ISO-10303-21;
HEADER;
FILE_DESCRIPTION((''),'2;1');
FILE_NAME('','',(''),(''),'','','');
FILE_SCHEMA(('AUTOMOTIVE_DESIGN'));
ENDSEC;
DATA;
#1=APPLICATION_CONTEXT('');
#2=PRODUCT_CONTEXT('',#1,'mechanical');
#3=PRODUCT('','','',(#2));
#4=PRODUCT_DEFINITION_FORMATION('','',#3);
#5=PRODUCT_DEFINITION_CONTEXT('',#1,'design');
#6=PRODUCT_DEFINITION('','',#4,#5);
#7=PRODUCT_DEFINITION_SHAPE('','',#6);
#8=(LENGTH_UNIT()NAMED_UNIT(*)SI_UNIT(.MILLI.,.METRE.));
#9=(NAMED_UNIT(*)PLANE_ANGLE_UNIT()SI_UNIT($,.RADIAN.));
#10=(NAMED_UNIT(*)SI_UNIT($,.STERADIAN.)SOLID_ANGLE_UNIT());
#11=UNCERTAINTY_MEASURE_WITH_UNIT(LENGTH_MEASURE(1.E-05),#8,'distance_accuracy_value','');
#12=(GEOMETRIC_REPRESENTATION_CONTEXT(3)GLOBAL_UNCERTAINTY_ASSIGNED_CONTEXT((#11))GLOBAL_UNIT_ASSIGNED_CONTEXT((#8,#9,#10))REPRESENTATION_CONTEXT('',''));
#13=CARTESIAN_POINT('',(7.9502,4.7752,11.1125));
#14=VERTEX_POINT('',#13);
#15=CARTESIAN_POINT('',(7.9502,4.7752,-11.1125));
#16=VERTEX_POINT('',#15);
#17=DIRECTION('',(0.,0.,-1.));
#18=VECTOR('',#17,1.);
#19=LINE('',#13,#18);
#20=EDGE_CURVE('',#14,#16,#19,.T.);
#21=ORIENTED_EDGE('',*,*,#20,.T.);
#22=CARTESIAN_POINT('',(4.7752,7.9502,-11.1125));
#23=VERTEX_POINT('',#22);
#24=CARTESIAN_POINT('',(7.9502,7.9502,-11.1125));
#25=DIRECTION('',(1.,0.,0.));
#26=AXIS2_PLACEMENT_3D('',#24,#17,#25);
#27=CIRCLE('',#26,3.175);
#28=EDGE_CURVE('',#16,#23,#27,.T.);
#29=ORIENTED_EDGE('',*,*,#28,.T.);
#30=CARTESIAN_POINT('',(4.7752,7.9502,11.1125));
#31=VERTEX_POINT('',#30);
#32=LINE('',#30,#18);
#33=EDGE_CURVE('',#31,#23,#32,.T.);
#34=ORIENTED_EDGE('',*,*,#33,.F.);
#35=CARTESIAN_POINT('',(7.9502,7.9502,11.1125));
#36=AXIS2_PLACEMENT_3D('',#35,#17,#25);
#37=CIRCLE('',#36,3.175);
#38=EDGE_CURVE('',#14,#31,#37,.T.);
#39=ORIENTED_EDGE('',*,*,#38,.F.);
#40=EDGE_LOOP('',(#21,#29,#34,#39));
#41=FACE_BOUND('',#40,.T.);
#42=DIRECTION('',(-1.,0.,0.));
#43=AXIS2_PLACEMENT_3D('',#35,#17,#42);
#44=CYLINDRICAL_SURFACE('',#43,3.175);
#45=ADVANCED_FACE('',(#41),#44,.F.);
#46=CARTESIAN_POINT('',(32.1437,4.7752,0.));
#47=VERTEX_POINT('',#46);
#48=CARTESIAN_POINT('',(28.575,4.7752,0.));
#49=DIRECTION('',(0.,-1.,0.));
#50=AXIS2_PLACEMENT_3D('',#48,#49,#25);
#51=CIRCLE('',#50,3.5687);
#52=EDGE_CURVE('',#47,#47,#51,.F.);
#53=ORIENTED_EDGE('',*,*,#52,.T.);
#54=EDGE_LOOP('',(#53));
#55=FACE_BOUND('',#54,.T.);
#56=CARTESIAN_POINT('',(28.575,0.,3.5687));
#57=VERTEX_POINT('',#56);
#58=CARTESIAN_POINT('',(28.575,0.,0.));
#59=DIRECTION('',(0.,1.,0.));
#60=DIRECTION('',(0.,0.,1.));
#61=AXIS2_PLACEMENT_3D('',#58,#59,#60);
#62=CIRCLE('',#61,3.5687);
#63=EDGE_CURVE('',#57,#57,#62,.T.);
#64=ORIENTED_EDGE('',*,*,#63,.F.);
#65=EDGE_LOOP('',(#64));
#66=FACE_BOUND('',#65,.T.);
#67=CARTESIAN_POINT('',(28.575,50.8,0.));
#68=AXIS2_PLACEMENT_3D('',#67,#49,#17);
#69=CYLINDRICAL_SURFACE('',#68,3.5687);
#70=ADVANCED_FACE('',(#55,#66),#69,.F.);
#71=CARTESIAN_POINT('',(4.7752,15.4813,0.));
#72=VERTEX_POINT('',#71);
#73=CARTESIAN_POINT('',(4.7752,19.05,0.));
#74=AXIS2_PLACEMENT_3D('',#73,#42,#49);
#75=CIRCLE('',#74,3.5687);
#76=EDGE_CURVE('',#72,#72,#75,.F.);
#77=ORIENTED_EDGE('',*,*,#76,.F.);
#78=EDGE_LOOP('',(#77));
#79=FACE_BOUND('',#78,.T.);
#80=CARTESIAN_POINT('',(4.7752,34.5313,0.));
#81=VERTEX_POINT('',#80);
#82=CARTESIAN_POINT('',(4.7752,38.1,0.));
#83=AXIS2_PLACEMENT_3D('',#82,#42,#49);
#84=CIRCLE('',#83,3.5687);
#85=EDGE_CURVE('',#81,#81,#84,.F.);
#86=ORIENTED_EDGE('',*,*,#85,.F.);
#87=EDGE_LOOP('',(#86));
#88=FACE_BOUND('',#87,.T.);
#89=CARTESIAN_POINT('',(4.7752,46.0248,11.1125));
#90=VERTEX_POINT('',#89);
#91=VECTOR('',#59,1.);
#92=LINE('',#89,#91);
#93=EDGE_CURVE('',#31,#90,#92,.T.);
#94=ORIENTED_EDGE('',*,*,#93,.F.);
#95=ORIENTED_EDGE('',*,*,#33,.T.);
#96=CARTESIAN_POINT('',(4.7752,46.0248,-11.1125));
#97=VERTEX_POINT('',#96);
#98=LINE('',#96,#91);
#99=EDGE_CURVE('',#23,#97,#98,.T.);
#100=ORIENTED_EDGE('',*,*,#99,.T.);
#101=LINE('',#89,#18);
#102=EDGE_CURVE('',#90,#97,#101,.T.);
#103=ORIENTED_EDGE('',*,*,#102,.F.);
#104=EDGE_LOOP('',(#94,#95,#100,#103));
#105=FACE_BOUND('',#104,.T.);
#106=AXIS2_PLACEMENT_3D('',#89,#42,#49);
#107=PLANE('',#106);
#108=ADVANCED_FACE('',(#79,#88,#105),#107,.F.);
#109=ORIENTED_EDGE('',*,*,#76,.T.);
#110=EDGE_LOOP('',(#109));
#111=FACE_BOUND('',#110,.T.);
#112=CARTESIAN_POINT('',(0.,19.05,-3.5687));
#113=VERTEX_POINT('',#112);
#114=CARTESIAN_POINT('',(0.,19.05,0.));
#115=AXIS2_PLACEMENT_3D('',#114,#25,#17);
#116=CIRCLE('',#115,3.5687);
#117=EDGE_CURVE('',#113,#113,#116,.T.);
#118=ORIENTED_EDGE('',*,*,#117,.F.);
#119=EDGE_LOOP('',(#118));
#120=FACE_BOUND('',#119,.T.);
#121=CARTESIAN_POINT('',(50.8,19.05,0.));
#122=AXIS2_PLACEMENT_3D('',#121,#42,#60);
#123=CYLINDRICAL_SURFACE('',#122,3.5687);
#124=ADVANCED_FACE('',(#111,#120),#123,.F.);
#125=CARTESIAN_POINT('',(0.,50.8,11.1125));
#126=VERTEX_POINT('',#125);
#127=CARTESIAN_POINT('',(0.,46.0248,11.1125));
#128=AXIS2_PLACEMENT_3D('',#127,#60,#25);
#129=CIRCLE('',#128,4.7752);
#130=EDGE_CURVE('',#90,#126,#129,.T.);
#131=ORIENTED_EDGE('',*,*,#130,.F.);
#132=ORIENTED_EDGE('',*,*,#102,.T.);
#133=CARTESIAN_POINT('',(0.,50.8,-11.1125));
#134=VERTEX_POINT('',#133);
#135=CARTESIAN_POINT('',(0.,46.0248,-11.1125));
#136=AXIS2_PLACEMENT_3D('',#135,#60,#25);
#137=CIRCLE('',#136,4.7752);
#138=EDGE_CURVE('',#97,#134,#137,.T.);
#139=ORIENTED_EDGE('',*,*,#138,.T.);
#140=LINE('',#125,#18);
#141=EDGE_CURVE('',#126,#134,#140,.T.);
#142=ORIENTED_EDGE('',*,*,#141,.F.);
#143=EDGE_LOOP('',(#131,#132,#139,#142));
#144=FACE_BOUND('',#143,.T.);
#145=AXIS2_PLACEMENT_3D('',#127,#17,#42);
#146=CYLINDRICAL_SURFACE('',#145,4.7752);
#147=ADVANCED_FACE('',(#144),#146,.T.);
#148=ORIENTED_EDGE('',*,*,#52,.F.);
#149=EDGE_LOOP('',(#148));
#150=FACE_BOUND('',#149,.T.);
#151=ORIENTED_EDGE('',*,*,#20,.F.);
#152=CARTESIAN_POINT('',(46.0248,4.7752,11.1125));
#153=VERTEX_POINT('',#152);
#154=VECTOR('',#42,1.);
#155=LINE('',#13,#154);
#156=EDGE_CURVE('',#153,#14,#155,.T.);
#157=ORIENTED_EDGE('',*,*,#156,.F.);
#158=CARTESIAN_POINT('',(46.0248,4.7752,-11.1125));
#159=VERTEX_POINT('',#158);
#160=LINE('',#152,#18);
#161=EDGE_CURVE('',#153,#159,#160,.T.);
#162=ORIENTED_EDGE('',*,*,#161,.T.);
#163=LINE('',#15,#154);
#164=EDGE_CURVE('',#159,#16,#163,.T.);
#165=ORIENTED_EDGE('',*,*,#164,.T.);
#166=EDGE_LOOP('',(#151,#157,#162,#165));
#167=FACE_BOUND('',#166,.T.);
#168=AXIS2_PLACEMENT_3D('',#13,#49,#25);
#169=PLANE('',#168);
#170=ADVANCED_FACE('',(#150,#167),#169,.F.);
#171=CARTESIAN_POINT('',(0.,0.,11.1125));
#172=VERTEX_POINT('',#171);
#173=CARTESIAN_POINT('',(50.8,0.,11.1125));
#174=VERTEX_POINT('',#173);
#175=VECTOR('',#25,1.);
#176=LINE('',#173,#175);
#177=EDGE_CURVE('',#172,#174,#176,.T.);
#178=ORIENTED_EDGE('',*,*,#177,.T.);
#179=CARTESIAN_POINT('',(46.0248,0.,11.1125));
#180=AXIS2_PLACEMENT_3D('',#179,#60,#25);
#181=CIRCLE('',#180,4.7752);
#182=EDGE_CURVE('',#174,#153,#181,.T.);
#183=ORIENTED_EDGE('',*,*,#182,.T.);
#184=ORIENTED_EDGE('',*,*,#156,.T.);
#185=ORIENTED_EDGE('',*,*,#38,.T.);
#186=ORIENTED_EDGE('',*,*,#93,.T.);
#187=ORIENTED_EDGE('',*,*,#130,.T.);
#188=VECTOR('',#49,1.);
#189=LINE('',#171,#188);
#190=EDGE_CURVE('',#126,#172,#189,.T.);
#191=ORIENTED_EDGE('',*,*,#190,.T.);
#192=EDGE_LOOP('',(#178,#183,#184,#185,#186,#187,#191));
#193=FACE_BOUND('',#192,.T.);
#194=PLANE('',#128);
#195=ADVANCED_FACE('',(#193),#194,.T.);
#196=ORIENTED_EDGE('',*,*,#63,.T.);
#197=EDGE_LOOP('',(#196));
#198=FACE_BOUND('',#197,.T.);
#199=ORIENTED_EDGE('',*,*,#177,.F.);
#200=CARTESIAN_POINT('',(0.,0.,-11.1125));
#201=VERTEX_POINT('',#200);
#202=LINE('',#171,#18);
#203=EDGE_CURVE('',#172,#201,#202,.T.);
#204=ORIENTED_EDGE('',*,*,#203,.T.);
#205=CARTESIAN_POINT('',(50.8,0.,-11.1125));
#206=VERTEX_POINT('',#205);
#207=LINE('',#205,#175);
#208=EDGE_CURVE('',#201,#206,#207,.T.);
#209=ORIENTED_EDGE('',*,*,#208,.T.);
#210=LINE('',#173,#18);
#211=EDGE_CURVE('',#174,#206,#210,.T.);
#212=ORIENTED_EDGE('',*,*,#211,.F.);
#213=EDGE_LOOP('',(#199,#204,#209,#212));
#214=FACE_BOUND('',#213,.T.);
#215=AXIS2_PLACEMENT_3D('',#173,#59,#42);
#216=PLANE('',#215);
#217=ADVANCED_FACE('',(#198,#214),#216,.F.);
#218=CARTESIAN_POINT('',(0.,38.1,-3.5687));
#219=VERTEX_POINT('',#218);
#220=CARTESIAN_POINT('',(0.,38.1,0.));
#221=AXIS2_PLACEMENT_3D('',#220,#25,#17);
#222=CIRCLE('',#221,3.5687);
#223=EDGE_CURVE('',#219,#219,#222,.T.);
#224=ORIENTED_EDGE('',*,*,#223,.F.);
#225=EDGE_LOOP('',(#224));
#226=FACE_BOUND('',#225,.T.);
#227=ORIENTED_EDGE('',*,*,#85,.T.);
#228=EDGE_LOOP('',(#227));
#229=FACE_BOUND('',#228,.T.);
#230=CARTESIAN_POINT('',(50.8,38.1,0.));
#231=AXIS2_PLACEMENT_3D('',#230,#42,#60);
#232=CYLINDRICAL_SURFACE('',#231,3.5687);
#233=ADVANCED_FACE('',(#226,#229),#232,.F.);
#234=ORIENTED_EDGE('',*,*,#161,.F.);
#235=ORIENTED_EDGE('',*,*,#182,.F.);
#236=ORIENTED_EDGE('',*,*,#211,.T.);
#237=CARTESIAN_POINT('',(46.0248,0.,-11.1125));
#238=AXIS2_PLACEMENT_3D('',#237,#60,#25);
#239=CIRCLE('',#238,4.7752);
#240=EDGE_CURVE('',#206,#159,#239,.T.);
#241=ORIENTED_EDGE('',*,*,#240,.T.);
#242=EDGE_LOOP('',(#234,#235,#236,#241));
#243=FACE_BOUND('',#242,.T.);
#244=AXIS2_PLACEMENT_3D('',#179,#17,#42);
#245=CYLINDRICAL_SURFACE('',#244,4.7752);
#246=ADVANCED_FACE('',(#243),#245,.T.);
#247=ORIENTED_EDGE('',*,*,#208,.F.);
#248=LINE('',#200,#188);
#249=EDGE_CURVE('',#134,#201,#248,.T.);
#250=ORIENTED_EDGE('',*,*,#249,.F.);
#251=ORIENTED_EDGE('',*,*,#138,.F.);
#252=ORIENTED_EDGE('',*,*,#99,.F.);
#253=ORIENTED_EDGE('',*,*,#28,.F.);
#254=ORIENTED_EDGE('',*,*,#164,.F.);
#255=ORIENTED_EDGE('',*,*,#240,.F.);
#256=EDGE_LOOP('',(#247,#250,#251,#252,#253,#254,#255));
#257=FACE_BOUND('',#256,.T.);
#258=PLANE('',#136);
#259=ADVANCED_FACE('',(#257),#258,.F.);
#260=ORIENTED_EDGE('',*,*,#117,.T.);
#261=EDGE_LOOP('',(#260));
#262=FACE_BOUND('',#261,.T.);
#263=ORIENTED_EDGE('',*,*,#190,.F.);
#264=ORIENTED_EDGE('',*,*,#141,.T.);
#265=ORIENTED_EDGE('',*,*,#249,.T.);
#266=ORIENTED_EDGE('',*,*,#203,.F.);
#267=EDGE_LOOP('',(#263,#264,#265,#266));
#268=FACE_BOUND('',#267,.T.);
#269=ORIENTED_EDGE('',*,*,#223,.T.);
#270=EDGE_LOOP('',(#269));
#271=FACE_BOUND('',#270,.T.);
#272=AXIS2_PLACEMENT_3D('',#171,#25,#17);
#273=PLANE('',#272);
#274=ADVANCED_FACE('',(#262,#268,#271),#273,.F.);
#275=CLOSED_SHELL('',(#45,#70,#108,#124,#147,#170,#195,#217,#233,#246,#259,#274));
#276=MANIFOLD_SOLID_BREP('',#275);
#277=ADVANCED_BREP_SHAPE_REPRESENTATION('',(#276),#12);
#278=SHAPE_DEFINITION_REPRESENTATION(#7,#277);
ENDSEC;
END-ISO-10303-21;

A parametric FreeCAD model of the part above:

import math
import FreeCAD as App
import Part
import Sketcher
from FreeCAD import Vector
Q = App.Units.Quantity

doc = App.newDocument("Part")
body = doc.addObject("PartDesign::Body", "Body")

sketch1 = body.newObject("Sketcher::SketchObject", "Sketch")
sketch1.AttachmentSupport = (doc.getObject("XY_Plane"), [""])
sketch1.MapMode = "FlatFace"
sketch1.addGeometry(Part.LineSegment(Vector(0, 50.8, 0), Vector(0, 0, 0)), False)
sketch1.addGeometry(Part.LineSegment(Vector(0, 0, 0), Vector(50.8, 0, 0)), False)
sketch1.addGeometry(Part.ArcOfCircle(Part.Circle(Vector(46, 0, 0), Vector(0, 0, 1), 4.8), math.radians(0), math.radians(90)), False)
sketch1.addGeometry(Part.LineSegment(Vector(46, 4.8, 0), Vector(8, 4.8, 0)), False)
sketch1.addGeometry(Part.ArcOfCircle(Part.Circle(Vector(8, 8, 0), Vector(0, 0, 1), 3.2), math.radians(-180), math.radians(-90)), False)
sketch1.addGeometry(Part.LineSegment(Vector(4.8, 8, 0), Vector(4.8, 46, 0)), False)
sketch1.addGeometry(Part.ArcOfCircle(Part.Circle(Vector(0, 46, 0), Vector(0, 0, 1), 4.8), math.radians(0), math.radians(90)), False)
sketch1.addConstraint(Sketcher.Constraint("Coincident", 0, 2, 1, 1))
sketch1.addConstraint(Sketcher.Constraint("Coincident", 1, 2, 2, 1))
sketch1.addConstraint(Sketcher.Constraint("Tangent", 2, 2, 3, 1))
sketch1.addConstraint(Sketcher.Constraint("Tangent", 3, 2, 4, 2))
sketch1.addConstraint(Sketcher.Constraint("Tangent", 4, 1, 5, 1))
sketch1.addConstraint(Sketcher.Constraint("Tangent", 5, 2, 6, 1))
sketch1.addConstraint(Sketcher.Constraint("Coincident", 6, 2, 0, 1))
sketch1.addConstraint(Sketcher.Constraint("Vertical", 0))
sketch1.addConstraint(Sketcher.Constraint("Horizontal", 1))
sketch1.addConstraint(Sketcher.Constraint("Horizontal", 3))
sketch1.addConstraint(Sketcher.Constraint("Vertical", 5))
sketch1.addConstraint(Sketcher.Constraint("Coincident", 0, 2, -1, 1))
sketch1.addConstraint(Sketcher.Constraint("Equal", 2, 6))
sketch1.addConstraint(Sketcher.Constraint("PointOnObject", 2, 3, -1))
sketch1.addConstraint(Sketcher.Constraint("PointOnObject", 6, 3, -2))
sketch1.addConstraint(Sketcher.Constraint("Equal", 1, 0))
sketch1.addConstraint(Sketcher.Constraint("DistanceX", 1, 1, 1, 2, Q("2 in")))
sketch1.addConstraint(Sketcher.Constraint("Radius", 2, Q("0.188 in")))
sketch1.addConstraint(Sketcher.Constraint("Radius", 4, Q("0.125 in")))
pad1 = body.newObject("PartDesign::Pad", "Pad")
pad1.Profile = sketch1
pad1.Length = Q("0.875 in")
pad1.Midplane = True

sketch2 = body.newObject("Sketcher::SketchObject", "Sketch001")
sketch2.AttachmentSupport = (doc.getObject("XZ_Plane"), [""])
sketch2.MapMode = "FlatFace"
sketch2.addGeometry(Part.Circle(Vector(28.6, 0, 0), Vector(0, 0, 1), 3.6), False)
sketch2.addConstraint(Sketcher.Constraint("PointOnObject", 0, 3, -1))
sketch2.addConstraint(Sketcher.Constraint("Diameter", 0, Q("0.281 in")))
sketch2.addConstraint(Sketcher.Constraint("DistanceX", -1, 1, 0, 3, Q("1.125 in")))
pocket1 = body.newObject("PartDesign::Pocket", "Pocket")
pocket1.Profile = sketch2
pocket1.Type = "ThroughAll"

sketch3 = body.newObject("Sketcher::SketchObject", "Sketch002")
sketch3.AttachmentSupport = (doc.getObject("YZ_Plane"), [""])
sketch3.MapMode = "FlatFace"
sketch3.addGeometry(Part.Circle(Vector(19.1, 0, 0), Vector(0, 0, 1), 3.6), False)
sketch3.addGeometry(Part.Circle(Vector(38.1, 0, 0), Vector(0, 0, 1), 3.6), False)
sketch3.addConstraint(Sketcher.Constraint("Equal", 0, 1))
sketch3.addConstraint(Sketcher.Constraint("PointOnObject", 0, 3, -1))
sketch3.addConstraint(Sketcher.Constraint("PointOnObject", 1, 3, -1))
sketch3.addConstraint(Sketcher.Constraint("Diameter", 0, Q("0.281 in")))
sketch3.addConstraint(Sketcher.Constraint("DistanceX", -1, 1, 1, 3, Q("1.5 in")))
sketch3.addConstraint(Sketcher.Constraint("DistanceX", -1, 1, 0, 3, Q("0.75 in")))
pocket2 = body.newObject("PartDesign::Pocket", "Pocket001")
pocket2.Profile = sketch3
pocket2.Type = "ThroughAll"
pocket2.Reversed = True

doc.recompute()
